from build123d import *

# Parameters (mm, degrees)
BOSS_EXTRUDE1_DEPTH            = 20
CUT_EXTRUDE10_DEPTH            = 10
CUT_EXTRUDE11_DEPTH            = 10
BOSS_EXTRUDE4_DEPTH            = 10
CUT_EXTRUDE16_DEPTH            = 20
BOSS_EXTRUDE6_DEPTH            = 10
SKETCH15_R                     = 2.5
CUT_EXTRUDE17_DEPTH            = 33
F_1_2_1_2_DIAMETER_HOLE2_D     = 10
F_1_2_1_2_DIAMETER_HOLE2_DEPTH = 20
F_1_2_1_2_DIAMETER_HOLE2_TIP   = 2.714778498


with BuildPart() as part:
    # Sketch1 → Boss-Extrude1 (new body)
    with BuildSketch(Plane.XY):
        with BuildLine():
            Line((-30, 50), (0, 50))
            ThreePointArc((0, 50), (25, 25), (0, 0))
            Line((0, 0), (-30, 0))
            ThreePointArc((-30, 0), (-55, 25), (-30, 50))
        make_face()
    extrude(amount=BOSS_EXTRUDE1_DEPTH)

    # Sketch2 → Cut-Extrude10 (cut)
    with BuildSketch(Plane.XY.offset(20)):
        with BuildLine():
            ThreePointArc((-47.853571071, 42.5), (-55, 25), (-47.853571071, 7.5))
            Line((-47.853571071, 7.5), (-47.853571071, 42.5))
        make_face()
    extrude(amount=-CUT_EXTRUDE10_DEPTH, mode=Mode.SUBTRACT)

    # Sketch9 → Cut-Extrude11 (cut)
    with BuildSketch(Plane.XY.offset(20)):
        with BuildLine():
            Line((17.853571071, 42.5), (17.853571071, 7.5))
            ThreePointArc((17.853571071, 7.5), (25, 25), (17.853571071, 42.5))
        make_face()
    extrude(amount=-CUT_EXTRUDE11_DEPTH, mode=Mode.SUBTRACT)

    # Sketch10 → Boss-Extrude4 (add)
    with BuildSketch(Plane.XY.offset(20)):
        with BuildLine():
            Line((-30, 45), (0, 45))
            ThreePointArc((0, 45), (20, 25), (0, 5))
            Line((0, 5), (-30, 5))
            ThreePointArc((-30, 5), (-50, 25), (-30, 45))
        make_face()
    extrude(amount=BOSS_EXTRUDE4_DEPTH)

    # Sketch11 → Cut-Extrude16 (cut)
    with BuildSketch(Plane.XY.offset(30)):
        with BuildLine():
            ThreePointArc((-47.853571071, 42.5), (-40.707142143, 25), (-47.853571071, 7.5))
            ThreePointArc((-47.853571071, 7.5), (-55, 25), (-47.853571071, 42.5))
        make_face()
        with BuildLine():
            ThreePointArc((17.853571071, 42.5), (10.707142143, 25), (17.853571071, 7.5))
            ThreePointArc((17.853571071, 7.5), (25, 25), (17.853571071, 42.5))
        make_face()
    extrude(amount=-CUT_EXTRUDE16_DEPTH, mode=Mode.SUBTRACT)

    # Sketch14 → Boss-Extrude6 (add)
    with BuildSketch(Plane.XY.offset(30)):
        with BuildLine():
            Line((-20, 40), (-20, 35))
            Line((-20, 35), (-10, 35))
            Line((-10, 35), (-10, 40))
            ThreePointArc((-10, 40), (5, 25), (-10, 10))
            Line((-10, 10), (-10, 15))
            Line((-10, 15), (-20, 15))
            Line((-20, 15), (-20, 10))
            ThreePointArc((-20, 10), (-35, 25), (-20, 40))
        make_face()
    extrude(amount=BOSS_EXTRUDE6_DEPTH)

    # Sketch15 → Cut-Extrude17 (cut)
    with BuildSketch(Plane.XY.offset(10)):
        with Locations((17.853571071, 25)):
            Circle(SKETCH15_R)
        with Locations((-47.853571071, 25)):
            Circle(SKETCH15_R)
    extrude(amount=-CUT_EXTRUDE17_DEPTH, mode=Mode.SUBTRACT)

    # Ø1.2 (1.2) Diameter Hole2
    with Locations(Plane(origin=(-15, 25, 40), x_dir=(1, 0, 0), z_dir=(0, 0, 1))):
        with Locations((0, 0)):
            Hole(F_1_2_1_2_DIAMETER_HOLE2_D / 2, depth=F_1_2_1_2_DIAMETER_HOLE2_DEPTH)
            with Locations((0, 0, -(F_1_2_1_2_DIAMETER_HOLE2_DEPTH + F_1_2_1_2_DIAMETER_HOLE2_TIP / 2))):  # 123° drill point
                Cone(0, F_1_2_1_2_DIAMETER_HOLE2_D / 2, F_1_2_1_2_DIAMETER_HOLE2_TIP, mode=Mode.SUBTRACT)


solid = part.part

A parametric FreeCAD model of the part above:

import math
import FreeCAD as App
import Part
import Sketcher

V = App.Vector

doc = App.newDocument("Part")
body = doc.addObject("PartDesign::Body", "Body")

sketch1 = body.newObject("Sketcher::SketchObject", "Sketch")
sketch1.AttachmentSupport = (doc.getObject("XY_Plane"), [""])
sketch1.MapMode = "FlatFace"
sketch1.addGeometry([
    Part.LineSegment(V(0, 50, 0), V(-30, 50, 0)),
    Part.ArcOfCircle(Part.Circle(V(-30, 25, 0), V(0, 0, 1), 25), math.radians(90), math.radians(270)),
    Part.LineSegment(V(-30, 0, 0), V(0, 0, 0)),
    Part.ArcOfCircle(Part.Circle(V(0, 25, 0), V(0, 0, 1), 25), math.radians(-90), math.radians(90)),
], False)
sketch1.addConstraint([
    Sketcher.Constraint("Tangent", 0, 2, 1, 1),
    Sketcher.Constraint("Tangent", 1, 2, 2, 1),
    Sketcher.Constraint("Tangent", 2, 2, 3, 1),
    Sketcher.Constraint("Tangent", 3, 2, 0, 1),
    Sketcher.Constraint("Horizontal", 0),
    Sketcher.Constraint("Horizontal", 2),
    Sketcher.Constraint("Coincident", 2, 2, -1, 1),
    Sketcher.Constraint("Radius", 1, 25.0),
    Sketcher.Constraint("DistanceX", 0, 2, 0, 1, 30.0),
])
pad1 = body.newObject("PartDesign::Pad", "Pad")
pad1.Profile = sketch1
pad1.Length = 20

sketch2 = body.newObject("Sketcher::SketchObject", "Sketch001")
sketch2.AttachmentSupport = (doc.getObject("XY_Plane"), [""])
sketch2.MapMode = "FlatFace"
sketch2.AttachmentOffset = App.Placement(V(0, 0, 20), App.Rotation())
sketch2.addGeometry([
    Part.ArcOfCircle(Part.Circle(V(-30, 25, 0), V(0, 0, 1), 25), math.radians(136), math.radians(224)),
    Part.LineSegment(V(-48, 8, 0), V(-48, 42, 0)),
], False)
sketch2.addConstraint([
    Sketcher.Constraint("Coincident", 0, 1, 1, 2),
    Sketcher.Constraint("Coincident", 1, 1, 0, 2),
    Sketcher.Constraint("Vertical", 1),
    Sketcher.Constraint("Radius", 0, 25.0),
    Sketcher.Constraint("DistanceY", 1, 1, 1, 2, 35.0),
    Sketcher.Constraint("DistanceX", 0, 3, -1, 1, 30.0),
    Sketcher.Constraint("DistanceY", -1, 1, 0, 3, 25.0),
])
pocket1 = body.newObject("PartDesign::Pocket", "Pocket")
pocket1.Profile = sketch2
pocket1.Length = 10

sketch3 = body.newObject("Sketcher::SketchObject", "Sketch002")
sketch3.AttachmentSupport = (doc.getObject("XY_Plane"), [""])
sketch3.MapMode = "FlatFace"
sketch3.AttachmentOffset = App.Placement(V(0, 0, 20), App.Rotation())
sketch3.addGeometry([
    Part.LineSegment(V(18, 42, 0), V(18, 8, 0)),
    Part.ArcOfCircle(Part.Circle(V(0, 25, 0), V(0, 0, 1), 25), math.radians(-44), math.radians(44)),
], False)
sketch3.addConstraint([
    Sketcher.Constraint("Coincident", 0, 1, 1, 2),
    Sketcher.Constraint("Coincident", 1, 1, 0, 2),
    Sketcher.Constraint("Vertical", 0),
    Sketcher.Constraint("PointOnObject", 1, 3, -2),
    Sketcher.Constraint("Radius", 1, 25.0),
    Sketcher.Constraint("DistanceY", 0, 2, 0, 1, 35.0),
    Sketcher.Constraint("DistanceY", -1, 1, 1, 3, 25.0),
])
pocket2 = body.newObject("PartDesign::Pocket", "Pocket001")
pocket2.Profile = sketch3
pocket2.Length = 10

sketch4 = body.newObject("Sketcher::SketchObject", "Sketch003")
sketch4.AttachmentSupport = (doc.getObject("XY_Plane"), [""])
sketch4.MapMode = "FlatFace"
sketch4.AttachmentOffset = App.Placement(V(0, 0, 20), App.Rotation())
sketch4.addGeometry([
    Part.LineSegment(V(0, 45, 0), V(-30, 45, 0)),
    Part.ArcOfCircle(Part.Circle(V(-30, 25, 0), V(0, 0, 1), 20), math.radians(90), math.radians(270)),
    Part.LineSegment(V(-30, 5, 0), V(0, 5, 0)),
    Part.ArcOfCircle(Part.Circle(V(0, 25, 0), V(0, 0, 1), 20), math.radians(-90), math.radians(90)),
], False)
sketch4.addConstraint([
    Sketcher.Constraint("Tangent", 0, 2, 1, 1),
    Sketcher.Constraint("Tangent", 1, 2, 2, 1),
    Sketcher.Constraint("Tangent", 2, 2, 3, 1),
    Sketcher.Constraint("Tangent", 3, 2, 0, 1),
    Sketcher.Constraint("Horizontal", 0),
    Sketcher.Constraint("Horizontal", 2),
    Sketcher.Constraint("PointOnObject", 3, 3, -2),
    Sketcher.Constraint("Radius", 1, 20.0),
    Sketcher.Constraint("DistanceX", 0, 2, 0, 1, 30.0),
    Sketcher.Constraint("DistanceY", -1, 1, 1, 3, 25.0),
])
pad2 = body.newObject("PartDesign::Pad", "Pad001")
pad2.Profile = sketch4
pad2.Length = 10

sketch5 = body.newObject("Sketcher::SketchObject", "Sketch004")
sketch5.AttachmentSupport = (doc.getObject("XY_Plane"), [""])
sketch5.MapMode = "FlatFace"
sketch5.AttachmentOffset = App.Placement(V(0, 0, 30), App.Rotation())
sketch5.addGeometry([
    Part.ArcOfCircle(Part.Circle(V(-66, 25, 0), V(0, 0, 1), 25), math.radians(-44), math.radians(44)),
    Part.ArcOfCircle(Part.Circle(V(-30, 25, 0), V(0, 0, 1), 25), math.radians(136), math.radians(224)),
    Part.ArcOfCircle(Part.Circle(V(36, 25, 0), V(0, 0, 1), 25), math.radians(136), math.radians(224)),
    Part.ArcOfCircle(Part.Circle(V(0, 25, 0), V(0, 0, 1), 25), math.radians(-44), math.radians(44)),
], False)
sketch5.addConstraint([
    Sketcher.Constraint("Coincident", 0, 1, 1, 2),
    Sketcher.Constraint("Coincident", 1, 1, 0, 2),
    Sketcher.Constraint("Coincident", 2, 1, 3, 2),
    Sketcher.Constraint("Coincident", 3, 1, 2, 2),
    Sketcher.Constraint("Equal", 0, 1),
    Sketcher.Constraint("Equal", 1, 2),
    Sketcher.Constraint("Equal", 2, 3),
    Sketcher.Constraint("PointOnObject", 3, 3, -2),
    Sketcher.Constraint("Horizontal", 0, 3, 1, 3),
    Sketcher.Constraint("Horizontal", 1, 3, 2, 3),
    Sketcher.Constraint("Horizontal", 2, 3, 3, 3),
    Sketcher.Constraint("Horizontal", 1, 1, 2, 1),
    Sketcher.Constraint("Radius", 0, 25.0),
    Sketcher.Constraint("DistanceY", -1, 1, 0, 3, 25.0),
    Sketcher.Constraint("DistanceX", 1, 3, -1, 1, 30.0),
    Sketcher.Constraint("DistanceY", 0, 1, 1, 1, 35.0),
])
pocket3 = body.newObject("PartDesign::Pocket", "Pocket002")
pocket3.Profile = sketch5
pocket3.Length = 20

sketch6 = body.newObject("Sketcher::SketchObject", "Sketch005")
sketch6.AttachmentSupport = (doc.getObject("XY_Plane"), [""])
sketch6.MapMode = "FlatFace"
sketch6.AttachmentOffset = App.Placement(V(0, 0, 30), App.Rotation())
sketch6.addGeometry([
    Part.LineSegment(V(-20, 35, 0), V(-20, 40, 0)),
    Part.ArcOfCircle(Part.Circle(V(-20, 25, 0), V(0, 0, 1), 15), math.radians(90), math.radians(270)),
    Part.LineSegment(V(-20, 10, 0), V(-20, 15, 0)),
    Part.LineSegment(V(-20, 15, 0), V(-10, 15, 0)),
    Part.LineSegment(V(-10, 15, 0), V(-10, 10, 0)),
    Part.ArcOfCircle(Part.Circle(V(-10, 25, 0), V(0, 0, 1), 15), math.radians(-90), math.radians(90)),
    Part.LineSegment(V(-10, 40, 0), V(-10, 35, 0)),
    Part.LineSegment(V(-10, 35, 0), V(-20, 35, 0)),
], False)
sketch6.addConstraint([
    Sketcher.Constraint("Coincident", 0, 2, 1, 1),
    Sketcher.Constraint("Coincident", 1, 2, 2, 1),
    Sketcher.Constraint("Coincident", 2, 2, 3, 1),
    Sketcher.Constraint("Coincident", 3, 2, 4, 1),
    Sketcher.Constraint("Coincident", 4, 2, 5, 1),
    Sketcher.Constraint("Coincident", 5, 2, 6, 1),
    Sketcher.Constraint("Coincident", 6, 2, 7, 1),
    Sketcher.Constraint("Coincident", 7, 2, 0, 1),
    Sketcher.Constraint("Vertical", 0),
    Sketcher.Constraint("Vertical", 2),
    Sketcher.Constraint("Horizontal", 3),
    Sketcher.Constraint("Vertical", 4),
    Sketcher.Constraint("Vertical", 6),
    Sketcher.Constraint("Horizontal", 7),
    Sketcher.Constraint("Equal", 1, 5),
    Sketcher.Constraint("Horizontal", 1, 3, 5, 3),
    Sketcher.Constraint("Vertical", 1, 3, 0, 2),
    Sketcher.Constraint("Vertical", 0, 2, 1, 2),
    Sketcher.Constraint("Vertical", 5, 3, 3, 2),
    Sketcher.Constraint("Vertical", 4, 2, 5, 2),
    Sketcher.Constraint("Equal", 0, 2),
    Sketcher.Constraint("Radius", 1, 15.0),
    Sketcher.Constraint("DistanceX", 3, 1, 3, 2, 10.0),
    Sketcher.Constraint("DistanceY", 0, 1, 0, 2, 5.0),
    Sketcher.Constraint("DistanceX", 1, 3, -1, 1, 20.0),
    Sketcher.Constraint("DistanceY", -1, 1, 1, 3, 25.0),
])
pad3 = body.newObject("PartDesign::Pad", "Pad002")
pad3.Profile = sketch6
pad3.Length = 10

sketch7 = body.newObject("Sketcher::SketchObject", "Sketch006")
sketch7.AttachmentSupport = (doc.getObject("XY_Plane"), [""])
sketch7.MapMode = "FlatFace"
sketch7.AttachmentOffset = App.Placement(V(0, 0, 10), App.Rotation())
sketch7.addGeometry([
    Part.Circle(V(17.9, 25, 0), V(0, 0, 1), 2.5),
    Part.Circle(V(-47.9, 25, 0), V(0, 0, 1), 2.5),
], False)
sketch7.addConstraint([
    Sketcher.Constraint("Equal", 0, 1),
    Sketcher.Constraint("Horizontal", 0, 3, 1, 3),
    Sketcher.Constraint("Diameter", 0, 5.0),
    Sketcher.Constraint("DistanceY", -1, 1, 0, 3, 25.0),
    Sketcher.Constraint("DistanceX", -1, 1, 0, 3, 17.853571),
    Sketcher.Constraint("DistanceX", 1, 3, -1, 1, 47.853571),
])
pocket4 = body.newObject("PartDesign::Pocket", "Pocket003")
pocket4.Profile = sketch7
pocket4.Length = 33

sketch8 = body.newObject("Sketcher::SketchObject", "Sketch007")
sketch8.AttachmentSupport = (doc.getObject("XY_Plane"), [""])
sketch8.MapMode = "FlatFace"
sketch8.AttachmentOffset = App.Placement(V(0, 0, 40), App.Rotation())
sketch8.addGeometry(Part.Circle(V(-15, 25, 0), V(0, 0, 1), 5), False)
sketch8.addConstraint([
    Sketcher.Constraint("Diameter", 0, 10.0),
    Sketcher.Constraint("DistanceX", 0, 3, -1, 1, 15.0),
    Sketcher.Constraint("DistanceY", -1, 1, 0, 3, 25.0),
])
doc.recompute()
hole = body.newObject("PartDesign::Hole", "Hole")
hole.Profile = sketch8
hole.ThreadType = "None"
hole.Diameter = 10
hole.DepthType = "Dimension"
hole.Depth = 20
hole.DrillPoint = "Angled"
hole.DrillPointAngle = 123

doc.recompute()
